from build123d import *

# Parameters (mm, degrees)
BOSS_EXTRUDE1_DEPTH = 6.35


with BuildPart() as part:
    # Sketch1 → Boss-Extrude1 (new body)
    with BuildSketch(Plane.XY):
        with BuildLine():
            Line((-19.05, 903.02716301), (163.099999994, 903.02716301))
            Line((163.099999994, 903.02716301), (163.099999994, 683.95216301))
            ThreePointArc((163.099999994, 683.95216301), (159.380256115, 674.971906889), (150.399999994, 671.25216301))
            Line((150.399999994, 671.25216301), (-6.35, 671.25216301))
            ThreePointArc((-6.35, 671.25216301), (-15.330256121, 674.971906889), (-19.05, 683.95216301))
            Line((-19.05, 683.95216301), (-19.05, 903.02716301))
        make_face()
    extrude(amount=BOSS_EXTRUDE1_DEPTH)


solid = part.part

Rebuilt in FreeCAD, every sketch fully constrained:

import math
import FreeCAD as App
import Part
import Sketcher

V = App.Vector
Q = App.Units.Quantity

doc = App.newDocument("Part")
body = doc.addObject("PartDesign::Body", "Body")

sketch1 = doc.addObject("Sketcher::SketchObject", "Sketch")
body.addObject(sketch1)
sketch1.AttachmentSupport = (doc.XY_Plane, [""])
sketch1.MapMode = "FlatFace"
sketch1.addGeometry([
    Part.LineSegment(V(163.1, 903.027163, 0), V(-19.05, 903.027163, 0)),
    Part.LineSegment(V(-19.05, 903.027163, 0), V(-19.05, 683.952163, 0)),
    Part.ArcOfCircle(Part.Circle(V(-6.35, 683.952163, 0), V(0, 0, 1), 12.7), math.radians(180), math.radians(270)),
    Part.LineSegment(V(-6.35, 671.252163, 0), V(150.4, 671.252163, 0)),
    Part.ArcOfCircle(Part.Circle(V(150.4, 683.952163, 0), V(0, 0, 1), 12.7), math.radians(-90), math.radians(0)),
    Part.LineSegment(V(163.1, 683.952163, 0), V(163.1, 903.027163, 0)),
], False)
sketch1.addConstraint([
    Sketcher.Constraint("Coincident", 0, 2, 1, 1),
    Sketcher.Constraint("Tangent", 1, 2, 2, 1),
    Sketcher.Constraint("Tangent", 2, 2, 3, 1),
    Sketcher.Constraint("Tangent", 3, 2, 4, 1),
    Sketcher.Constraint("Tangent", 4, 2, 5, 1),
    Sketcher.Constraint("Coincident", 5, 2, 0, 1),
    Sketcher.Constraint("Horizontal", 0),
    Sketcher.Constraint("Vertical", 1),
    Sketcher.Constraint("Horizontal", 3),
    Sketcher.Constraint("Vertical", 5),
    Sketcher.Constraint("Equal", 2, 4),
    Sketcher.Constraint("Radius", 2, Q("0.5 in")),
    Sketcher.Constraint("DistanceY", 1, 2, 1, 1, Q("8.625 in")),
    Sketcher.Constraint("DistanceX", 2, 3, -1, 1, Q("0.25 in")),
    Sketcher.Constraint("DistanceX", 0, 2, 0, 1, 182.15),
    Sketcher.Constraint("DistanceY", -1, 1, 2, 3, 683.952163),
])
pad1 = doc.addObject("PartDesign::Pad", "Pad")
body.addObject(pad1)
pad1.Profile = sketch1
pad1.Length = Q("0.25 in")

doc.recompute()
